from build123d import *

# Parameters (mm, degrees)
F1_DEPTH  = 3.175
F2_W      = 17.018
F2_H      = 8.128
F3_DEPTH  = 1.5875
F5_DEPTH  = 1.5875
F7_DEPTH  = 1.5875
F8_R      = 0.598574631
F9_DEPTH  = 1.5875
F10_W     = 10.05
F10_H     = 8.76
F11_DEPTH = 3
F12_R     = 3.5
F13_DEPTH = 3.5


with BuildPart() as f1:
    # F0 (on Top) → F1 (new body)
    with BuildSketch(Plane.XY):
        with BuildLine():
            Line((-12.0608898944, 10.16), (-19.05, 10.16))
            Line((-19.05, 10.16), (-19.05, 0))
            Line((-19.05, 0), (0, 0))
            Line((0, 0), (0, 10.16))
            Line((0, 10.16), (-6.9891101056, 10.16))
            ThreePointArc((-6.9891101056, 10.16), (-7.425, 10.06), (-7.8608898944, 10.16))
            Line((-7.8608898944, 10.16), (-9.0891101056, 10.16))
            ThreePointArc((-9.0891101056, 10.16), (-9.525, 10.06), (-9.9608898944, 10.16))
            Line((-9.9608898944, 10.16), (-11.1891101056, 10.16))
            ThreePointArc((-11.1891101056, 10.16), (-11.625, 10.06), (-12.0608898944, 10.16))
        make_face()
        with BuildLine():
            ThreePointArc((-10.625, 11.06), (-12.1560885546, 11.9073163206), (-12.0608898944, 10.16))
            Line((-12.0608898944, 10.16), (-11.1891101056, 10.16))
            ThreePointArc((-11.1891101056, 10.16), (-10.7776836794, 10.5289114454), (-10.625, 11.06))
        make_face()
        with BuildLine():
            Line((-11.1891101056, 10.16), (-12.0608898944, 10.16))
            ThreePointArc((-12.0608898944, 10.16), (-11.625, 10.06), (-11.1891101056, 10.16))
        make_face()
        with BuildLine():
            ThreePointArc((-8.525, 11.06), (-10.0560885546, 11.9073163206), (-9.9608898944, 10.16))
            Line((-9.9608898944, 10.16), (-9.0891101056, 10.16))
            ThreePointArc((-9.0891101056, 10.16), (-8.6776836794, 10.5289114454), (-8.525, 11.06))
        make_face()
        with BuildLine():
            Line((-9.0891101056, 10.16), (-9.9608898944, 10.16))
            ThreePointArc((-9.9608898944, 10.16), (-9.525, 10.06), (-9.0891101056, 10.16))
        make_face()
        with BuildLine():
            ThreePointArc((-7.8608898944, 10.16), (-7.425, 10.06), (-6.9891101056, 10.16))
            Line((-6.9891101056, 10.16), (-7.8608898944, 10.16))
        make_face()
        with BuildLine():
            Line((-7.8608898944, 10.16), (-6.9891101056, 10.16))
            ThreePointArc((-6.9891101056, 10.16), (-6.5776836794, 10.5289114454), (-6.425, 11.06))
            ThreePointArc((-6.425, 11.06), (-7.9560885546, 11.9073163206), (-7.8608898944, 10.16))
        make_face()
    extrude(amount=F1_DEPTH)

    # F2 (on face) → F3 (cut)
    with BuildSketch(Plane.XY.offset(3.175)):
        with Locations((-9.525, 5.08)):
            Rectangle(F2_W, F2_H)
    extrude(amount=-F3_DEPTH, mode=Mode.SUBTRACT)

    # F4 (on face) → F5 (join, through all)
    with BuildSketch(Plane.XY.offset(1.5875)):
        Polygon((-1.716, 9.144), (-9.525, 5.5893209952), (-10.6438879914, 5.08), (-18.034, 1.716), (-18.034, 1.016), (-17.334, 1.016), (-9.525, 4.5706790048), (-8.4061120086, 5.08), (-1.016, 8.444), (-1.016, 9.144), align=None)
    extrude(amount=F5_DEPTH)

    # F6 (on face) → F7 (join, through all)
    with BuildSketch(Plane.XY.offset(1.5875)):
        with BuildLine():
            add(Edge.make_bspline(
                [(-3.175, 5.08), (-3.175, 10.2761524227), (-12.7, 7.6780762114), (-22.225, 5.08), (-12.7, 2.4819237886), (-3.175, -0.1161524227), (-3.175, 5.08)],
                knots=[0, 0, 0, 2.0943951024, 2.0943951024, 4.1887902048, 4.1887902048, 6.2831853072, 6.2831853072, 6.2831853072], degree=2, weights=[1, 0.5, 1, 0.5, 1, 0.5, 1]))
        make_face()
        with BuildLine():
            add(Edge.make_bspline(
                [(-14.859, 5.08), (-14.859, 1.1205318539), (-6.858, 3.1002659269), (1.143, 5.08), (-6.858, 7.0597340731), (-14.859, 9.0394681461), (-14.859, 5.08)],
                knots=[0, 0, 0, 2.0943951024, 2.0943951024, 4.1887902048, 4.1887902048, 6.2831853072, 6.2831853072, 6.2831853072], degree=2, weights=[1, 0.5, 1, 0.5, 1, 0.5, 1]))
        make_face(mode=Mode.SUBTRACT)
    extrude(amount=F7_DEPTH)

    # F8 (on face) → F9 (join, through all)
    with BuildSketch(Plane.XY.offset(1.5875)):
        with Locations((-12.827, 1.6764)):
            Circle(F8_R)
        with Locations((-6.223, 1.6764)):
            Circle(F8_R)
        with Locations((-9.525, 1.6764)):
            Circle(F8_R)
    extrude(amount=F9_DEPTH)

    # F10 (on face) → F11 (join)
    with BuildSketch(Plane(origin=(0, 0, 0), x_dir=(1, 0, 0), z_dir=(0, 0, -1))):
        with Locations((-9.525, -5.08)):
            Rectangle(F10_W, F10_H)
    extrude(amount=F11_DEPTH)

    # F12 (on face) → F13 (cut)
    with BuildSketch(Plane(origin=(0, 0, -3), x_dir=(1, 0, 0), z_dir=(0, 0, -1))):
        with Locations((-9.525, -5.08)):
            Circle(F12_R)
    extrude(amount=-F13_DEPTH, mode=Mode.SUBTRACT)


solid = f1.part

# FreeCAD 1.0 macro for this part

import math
import FreeCAD as App
import Part
import Sketcher
from FreeCAD import Vector
Q = App.Units.Quantity

doc = App.newDocument("Part")
body = doc.addObject("PartDesign::Body", "Body")

# Sketch on XY plane
sketch1 = body.newObject("Sketcher::SketchObject", "Sketch")
sketch1.AttachmentSupport = (doc.getObject("XY_Plane"), [""])
sketch1.MapMode = "FlatFace"
sketch1.addGeometry(Part.LineSegment(Vector(-12.1, 10.2, 0), Vector(-19.1, 10.2, 0)), False)
sketch1.addGeometry(Part.LineSegment(Vector(-19.1, 10.2, 0), Vector(-19.1, 0, 0)), False)
sketch1.addGeometry(Part.LineSegment(Vector(-19.1, 0, 0), Vector(0, 0, 0)), False)
sketch1.addGeometry(Part.LineSegment(Vector(0, 0, 0), Vector(0, 10.2, 0)), False)
sketch1.addGeometry(Part.LineSegment(Vector(0, 10.2, 0), Vector(-7, 10.2, 0)), False)
sketch1.addGeometry(Part.ArcOfCircle(Part.Circle(Vector(-7.4, 11.1, 0), Vector(0, 0, 1), 1), math.radians(-64), math.radians(0)), False)
sketch1.addGeometry(Part.ArcOfCircle(Part.Circle(Vector(-7.4, 11.1, 0), Vector(0, 0, 1), 1), math.radians(0), math.radians(244)), False)
sketch1.addGeometry(Part.LineSegment(Vector(-7.9, 10.2, 0), Vector(-9.1, 10.2, 0)), False)
sketch1.addGeometry(Part.ArcOfCircle(Part.Circle(Vector(-9.5, 11.1, 0), Vector(0, 0, 1), 1), math.radians(-64), math.radians(0)), False)
sketch1.addGeometry(Part.ArcOfCircle(Part.Circle(Vector(-9.5, 11.1, 0), Vector(0, 0, 1), 1), math.radians(0), math.radians(244)), False)
sketch1.addGeometry(Part.LineSegment(Vector(-10, 10.2, 0), Vector(-11.2, 10.2, 0)), False)
sketch1.addGeometry(Part.ArcOfCircle(Part.Circle(Vector(-11.6, 11.1, 0), Vector(0, 0, 1), 1), math.radians(-64), math.radians(0)), False)
sketch1.addGeometry(Part.ArcOfCircle(Part.Circle(Vector(-11.6, 11.1, 0), Vector(0, 0, 1), 1), math.radians(0), math.radians(244)), False)
sketch1.addConstraint(Sketcher.Constraint("Coincident", 0, 2, 1, 1))
sketch1.addConstraint(Sketcher.Constraint("Coincident", 1, 2, 2, 1))
sketch1.addConstraint(Sketcher.Constraint("Coincident", 2, 2, 3, 1))
sketch1.addConstraint(Sketcher.Constraint("Coincident", 3, 2, 4, 1))
sketch1.addConstraint(Sketcher.Constraint("Coincident", 4, 2, 5, 1))
sketch1.addConstraint(Sketcher.Constraint("Tangent", 5, 2, 6, 1))
sketch1.addConstraint(Sketcher.Constraint("Coincident", 6, 2, 7, 1))
sketch1.addConstraint(Sketcher.Constraint("Coincident", 7, 2, 8, 1))
sketch1.addConstraint(Sketcher.Constraint("Tangent", 8, 2, 9, 1))
sketch1.addConstraint(Sketcher.Constraint("Coincident", 9, 2, 10, 1))
sketch1.addConstraint(Sketcher.Constraint("Coincident", 10, 2, 11, 1))
sketch1.addConstraint(Sketcher.Constraint("Tangent", 11, 2, 12, 1))
sketch1.addConstraint(Sketcher.Constraint("Coincident", 12, 2, 0, 1))
sketch1.addConstraint(Sketcher.Constraint("Horizontal", 0))
sketch1.addConstraint(Sketcher.Constraint("Vertical", 1))
sketch1.addConstraint(Sketcher.Constraint("Horizontal", 2))
sketch1.addConstraint(Sketcher.Constraint("Vertical", 3))
sketch1.addConstraint(Sketcher.Constraint("Horizontal", 4))
sketch1.addConstraint(Sketcher.Constraint("Horizontal", 7))
sketch1.addConstraint(Sketcher.Constraint("Horizontal", 10))
sketch1.addConstraint(Sketcher.Constraint("Coincident", 2, 2, -1, 1))
sketch1.addConstraint(Sketcher.Constraint("Equal", 5, 6))
sketch1.addConstraint(Sketcher.Constraint("Equal", 6, 8))
sketch1.addConstraint(Sketcher.Constraint("Equal", 8, 9))
sketch1.addConstraint(Sketcher.Constraint("Equal", 9, 11))
sketch1.addConstraint(Sketcher.Constraint("Equal", 11, 12))
sketch1.addConstraint(Sketcher.Constraint("Horizontal", 6, 3, 8, 3))
sketch1.addConstraint(Sketcher.Constraint("Horizontal", 9, 3, 11, 3))
sketch1.addConstraint(Sketcher.Constraint("Horizontal", 0, 2, 3, 2))
sketch1.addConstraint(Sketcher.Constraint("Horizontal", 12, 3, 5, 2))
sketch1.addConstraint(Sketcher.Constraint("Horizontal", 4, 2, 6, 2))
sketch1.addConstraint(Sketcher.Constraint("Horizontal", 5, 2, 8, 2))
sketch1.addConstraint(Sketcher.Constraint("Horizontal", 7, 2, 9, 2))
sketch1.addConstraint(Sketcher.Constraint("Horizontal", 8, 2, 11, 2))
sketch1.addConstraint(Sketcher.Constraint("Equal", 0, 4))
sketch1.addConstraint(Sketcher.Constraint("Equal", 7, 10))
sketch1.addConstraint(Sketcher.Constraint("DistanceY", 1, 2, 1, 1, Q("0.4 in")))
sketch1.addConstraint(Sketcher.Constraint("DistanceX", 2, 1, 2, 2, Q("0.75 in")))
sketch1.addConstraint(Sketcher.Constraint("Radius", 5, Q("1 mm")))
sketch1.addConstraint(Sketcher.Constraint("DistanceX", 0, 2, 0, 1, Q("6.98911 mm")))
sketch1.addConstraint(Sketcher.Constraint("DistanceX", 7, 2, 7, 1, Q("1.22822 mm")))
pad1 = body.newObject("PartDesign::Pad", "Pad")
pad1.Profile = sketch1
pad1.Length = Q("0.125 in")

# Sketch on XY plane
sketch2 = body.newObject("Sketcher::SketchObject", "Sketch001")
sketch2.AttachmentSupport = (doc.getObject("XY_Plane"), [""])
sketch2.MapMode = "FlatFace"
sketch2.AttachmentOffset = App.Placement(Vector(0, 0, 0.125 * 25.4), App.Rotation())
sketch2.addGeometry(Part.LineSegment(Vector(-18, 9, 0), Vector(-18, 1, 0)), False)
sketch2.addGeometry(Part.LineSegment(Vector(-18, 1, 0), Vector(-1, 1, 0)), False)
sketch2.addGeometry(Part.LineSegment(Vector(-1, 1, 0), Vector(-1, 9, 0)), False)
sketch2.addGeometry(Part.LineSegment(Vector(-1, 9, 0), Vector(-18, 9, 0)), False)
sketch2.addConstraint(Sketcher.Constraint("Coincident", 0, 2, 1, 1))
sketch2.addConstraint(Sketcher.Constraint("Coincident", 1, 2, 2, 1))
sketch2.addConstraint(Sketcher.Constraint("Coincident", 2, 2, 3, 1))
sketch2.addConstraint(Sketcher.Constraint("Coincident", 3, 2, 0, 1))
sketch2.addConstraint(Sketcher.Constraint("Vertical", 0))
sketch2.addConstraint(Sketcher.Constraint("Horizontal", 1))
sketch2.addConstraint(Sketcher.Constraint("Vertical", 2))
sketch2.addConstraint(Sketcher.Constraint("Horizontal", 3))
sketch2.addConstraint(Sketcher.Constraint("DistanceX", 1, 1, 1, 2, Q("0.67 in")))
sketch2.addConstraint(Sketcher.Constraint("DistanceY", 0, 2, 0, 1, Q("0.32 in")))
sketch2.addConstraint(Sketcher.Constraint("DistanceX", 0, 2, -1, 1, Q("0.71 in")))
sketch2.addConstraint(Sketcher.Constraint("DistanceY", -1, 1, 0, 2, Q("0.04 in")))
pocket1 = body.newObject("PartDesign::Pocket", "Pocket")
pocket1.Profile = sketch2
pocket1.Length = Q("0.0625 in")

# Sketch on XY plane
sketch3 = body.newObject("Sketcher::SketchObject", "Sketch002")
sketch3.AttachmentSupport = (doc.getObject("XY_Plane"), [""])
sketch3.MapMode = "FlatFace"
sketch3.AttachmentOffset = App.Placement(Vector(0, 0, 0.0625 * 25.4), App.Rotation())
sketch3.addGeometry(Part.LineSegment(Vector(-1.7, 9.1, 0), Vector(-9.5, 5.6, 0)), False)
sketch3.addGeometry(Part.LineSegment(Vector(-9.5, 5.6, 0), Vector(-10.6, 5.1, 0)), False)
sketch3.addGeometry(Part.LineSegment(Vector(-10.6, 5.1, 0), Vector(-18, 1.7, 0)), False)
sketch3.addGeometry(Part.LineSegment(Vector(-18, 1.7, 0), Vector(-18, 1, 0)), False)
sketch3.addGeometry(Part.LineSegment(Vector(-18, 1, 0), Vector(-17.3, 1, 0)), False)
sketch3.addGeometry(Part.LineSegment(Vector(-17.3, 1, 0), Vector(-9.5, 4.6, 0)), False)
sketch3.addGeometry(Part.LineSegment(Vector(-9.5, 4.6, 0), Vector(-8.4, 5.1, 0)), False)
sketch3.addGeometry(Part.LineSegment(Vector(-8.4, 5.1, 0), Vector(-1, 8.4, 0)), False)
sketch3.addGeometry(Part.LineSegment(Vector(-1, 8.4, 0), Vector(-1, 9.1, 0)), False)
sketch3.addGeometry(Part.LineSegment(Vector(-1, 9.1, 0), Vector(-1.7, 9.1, 0)), False)
sketch3.addConstraint(Sketcher.Constraint("Coincident", 0, 2, 1, 1))
sketch3.addConstraint(Sketcher.Constraint("Coincident", 1, 2, 2, 1))
sketch3.addConstraint(Sketcher.Constraint("Coincident", 2, 2, 3, 1))
sketch3.addConstraint(Sketcher.Constraint("Coincident", 3, 2, 4, 1))
sketch3.addConstraint(Sketcher.Constraint("Coincident", 4, 2, 5, 1))
sketch3.addConstraint(Sketcher.Constraint("Coincident", 5, 2, 6, 1))
sketch3.addConstraint(Sketcher.Constraint("Coincident", 6, 2, 7, 1))
sketch3.addConstraint(Sketcher.Constraint("Coincident", 7, 2, 8, 1))
sketch3.addConstraint(Sketcher.Constraint("Coincident", 8, 2, 9, 1))
sketch3.addConstraint(Sketcher.Constraint("Coincident", 9, 2, 0, 1))
sketch3.addConstraint(Sketcher.Constraint("Vertical", 3))
sketch3.addConstraint(Sketcher.Constraint("Horizontal", 4))
sketch3.addConstraint(Sketcher.Constraint("Vertical", 8))
sketch3.addConstraint(Sketcher.Constraint("Horizontal", 9))
sketch3.addConstraint(Sketcher.Constraint("Parallel", 0, 1))
sketch3.addConstraint(Sketcher.Constraint("Parallel", 1, 2))
sketch3.addConstraint(Sketcher.Constraint("Parallel", 2, 5))
sketch3.addConstraint(Sketcher.Constraint("Parallel", 5, 6))
sketch3.addConstraint(Sketcher.Constraint("Parallel", 6, 7))
sketch3.addConstraint(Sketcher.Constraint("Horizontal", 1, 2, 6, 2))
sketch3.addConstraint(Sketcher.Constraint("Vertical", 0, 2, 5, 2))
sketch3.addConstraint(Sketcher.Constraint("Equal", 4, 9))
sketch3.addConstraint(Sketcher.Constraint("Equal", 9, 3))
sketch3.addConstraint(Sketcher.Constraint("Equal", 0, 5))
sketch3.addConstraint(Sketcher.Constraint("Equal", 1, 6))
sketch3.addConstraint(Sketcher.Constraint("DistanceY", -1, 1, 1, 2, Q("0.2 in")))
sketch3.addConstraint(Sketcher.Constraint("DistanceX", 2, 2, -1, 1, Q("0.71 in")))
sketch3.addConstraint(Sketcher.Constraint("DistanceY", -1, 1, 3, 2, Q("0.04 in")))
sketch3.addConstraint(Sketcher.Constraint("DistanceX", 7, 2, -1, 1, Q("0.04 in")))
sketch3.addConstraint(Sketcher.Constraint("Distance", 1, Q("0.0483999 in")))
pad2 = body.newObject("PartDesign::Pad", "Pad001")
pad2.Profile = sketch3
pad2.Length = Q("0.0625 in")

# Sketch on XY plane
sketch4 = body.newObject("Sketcher::SketchObject", "Sketch003")
sketch4.AttachmentSupport = (doc.getObject("XY_Plane"), [""])
sketch4.MapMode = "FlatFace"
sketch4.AttachmentOffset = App.Placement(Vector(0, 0, 0.0625 * 25.4), App.Rotation())
sketch4.addGeometry(Part.BSplineCurve([Vector(-3.175, 5.08, 0), Vector(-3.175, 10.276152, 0), Vector(-12.7, 7.678076, 0), Vector(-22.225, 5.08, 0), Vector(-12.7, 2.481924, 0), Vector(-3.175, -0.116152, 0), Vector(-3.175, 5.08, 0)], [3, 2, 2, 3], [0, 2.094395102, 4.188790205, 6.283185307], False, 2, [1, 0.5, 1, 0.5, 1, 0.5, 1], False), False)
sketch4.addGeometry(Part.BSplineCurve([Vector(-14.859, 5.08, 0), Vector(-14.859, 1.120532, 0), Vector(-6.858, 3.100266, 0), Vector(1.143, 5.08, 0), Vector(-6.858, 7.059734, 0), Vector(-14.859, 9.039468, 0), Vector(-14.859, 5.08, 0)], [3, 2, 2, 3], [0, 2.094395102, 4.188790205, 6.283185307], False, 2, [1, 0.5, 1, 0.5, 1, 0.5, 1], False), False)
sketch4.addConstraint(Sketcher.Constraint("Block", 0))
sketch4.addConstraint(Sketcher.Constraint("Block", 1))
pad3 = body.newObject("PartDesign::Pad", "Pad002")
pad3.Profile = sketch4
pad3.Length = Q("0.0625 in")

# Sketch on XY plane
sketch5 = body.newObject("Sketcher::SketchObject", "Sketch004")
sketch5.AttachmentSupport = (doc.getObject("XY_Plane"), [""])
sketch5.MapMode = "FlatFace"
sketch5.AttachmentOffset = App.Placement(Vector(0, 0, 0.0625 * 25.4), App.Rotation())
sketch5.addGeometry(Part.Circle(Vector(-12.8, 1.7, 0), Vector(0, 0, 1), 0.6), False)
sketch5.addGeometry(Part.Circle(Vector(-6.2, 1.7, 0), Vector(0, 0, 1), 0.6), False)
sketch5.addGeometry(Part.Circle(Vector(-9.5, 1.7, 0), Vector(0, 0, 1), 0.6), False)
sketch5.addConstraint(Sketcher.Constraint("Equal", 0, 1))
sketch5.addConstraint(Sketcher.Constraint("Equal", 1, 2))
sketch5.addConstraint(Sketcher.Constraint("Horizontal", 0, 3, 1, 3))
sketch5.addConstraint(Sketcher.Constraint("Horizontal", 1, 3, 2, 3))
sketch5.addConstraint(Sketcher.Constraint("DistanceX", 0, 3, 1, 3, Q("0.26 in")))
sketch5.addConstraint(Sketcher.Constraint("DistanceX", 0, 3, 2, 3, Q("0.13 in")))
sketch5.addConstraint(Sketcher.Constraint("Diameter", 0, Q("1.197149 mm")))
sketch5.addConstraint(Sketcher.Constraint("DistanceX", 0, 3, -1, 1, Q("0.505 in")))
sketch5.addConstraint(Sketcher.Constraint("DistanceY", -1, 1, 0, 3, Q("0.066 in")))
pad4 = body.newObject("PartDesign::Pad", "Pad003")
pad4.Profile = sketch5
pad4.Length = Q("0.0625 in")

# Sketch on XY plane
sketch6 = body.newObject("Sketcher::SketchObject", "Sketch005")
sketch6.AttachmentSupport = (doc.getObject("XY_Plane"), [""])
sketch6.MapMode = "FlatFace"
sketch6.addGeometry(Part.LineSegment(Vector(-15, 1, 0), Vector(-15, 9, 0)), False)
sketch6.addGeometry(Part.LineSegment(Vector(-15, 9, 0), Vector(-4, 9, 0)), False)
sketch6.addGeometry(Part.LineSegment(Vector(-4, 9, 0), Vector(-4, 1, 0)), False)
sketch6.addGeometry(Part.LineSegment(Vector(-4, 1, 0), Vector(-15, 1, 0)), False)
sketch6.addConstraint(Sketcher.Constraint("Coincident", 0, 2, 1, 1))
sketch6.addConstraint(Sketcher.Constraint("Coincident", 1, 2, 2, 1))
sketch6.addConstraint(Sketcher.Constraint("Coincident", 2, 2, 3, 1))
sketch6.addConstraint(Sketcher.Constraint("Coincident", 3, 2, 0, 1))
sketch6.addConstraint(Sketcher.Constraint("Vertical", 0))
sketch6.addConstraint(Sketcher.Constraint("Horizontal", 1))
sketch6.addConstraint(Sketcher.Constraint("Vertical", 2))
sketch6.addConstraint(Sketcher.Constraint("Horizontal", 3))
sketch6.addConstraint(Sketcher.Constraint("DistanceX", 1, 1, 1, 2, Q("10.05 mm")))
sketch6.addConstraint(Sketcher.Constraint("DistanceY", 0, 1, 0, 2, Q("8.76 mm")))
sketch6.addConstraint(Sketcher.Constraint("DistanceX", 0, 2, -1, 1, Q("14.55 mm")))
sketch6.addConstraint(Sketcher.Constraint("DistanceY", -1, 1, 0, 2, Q("9.46 mm")))
pad5 = body.newObject("PartDesign::Pad", "Pad004")
pad5.Profile = sketch6
pad5.Length = 3
pad5.Reversed = True

# Sketch on XY plane
sketch7 = body.newObject("Sketcher::SketchObject", "Sketch006")
sketch7.AttachmentSupport = (doc.getObject("XY_Plane"), [""])
sketch7.MapMode = "FlatFace"
sketch7.AttachmentOffset = App.Placement(Vector(0, 0, -3), App.Rotation())
sketch7.addGeometry(Part.Circle(Vector(-9.5, 5.1, 0), Vector(0, 0, 1), 3.5), False)
sketch7.addConstraint(Sketcher.Constraint("DistanceY", -1, 1, 0, 3, Q("0.2 in")))
sketch7.addConstraint(Sketcher.Constraint("Diameter", 0, Q("7 mm")))
sketch7.addConstraint(Sketcher.Constraint("DistanceX", 0, 3, -1, 1, Q("0.375 in")))
pocket2 = body.newObject("PartDesign::Pocket", "Pocket001")
pocket2.Profile = sketch7
pocket2.Length = 3.5
pocket2.Reversed = True

doc.recompute()
